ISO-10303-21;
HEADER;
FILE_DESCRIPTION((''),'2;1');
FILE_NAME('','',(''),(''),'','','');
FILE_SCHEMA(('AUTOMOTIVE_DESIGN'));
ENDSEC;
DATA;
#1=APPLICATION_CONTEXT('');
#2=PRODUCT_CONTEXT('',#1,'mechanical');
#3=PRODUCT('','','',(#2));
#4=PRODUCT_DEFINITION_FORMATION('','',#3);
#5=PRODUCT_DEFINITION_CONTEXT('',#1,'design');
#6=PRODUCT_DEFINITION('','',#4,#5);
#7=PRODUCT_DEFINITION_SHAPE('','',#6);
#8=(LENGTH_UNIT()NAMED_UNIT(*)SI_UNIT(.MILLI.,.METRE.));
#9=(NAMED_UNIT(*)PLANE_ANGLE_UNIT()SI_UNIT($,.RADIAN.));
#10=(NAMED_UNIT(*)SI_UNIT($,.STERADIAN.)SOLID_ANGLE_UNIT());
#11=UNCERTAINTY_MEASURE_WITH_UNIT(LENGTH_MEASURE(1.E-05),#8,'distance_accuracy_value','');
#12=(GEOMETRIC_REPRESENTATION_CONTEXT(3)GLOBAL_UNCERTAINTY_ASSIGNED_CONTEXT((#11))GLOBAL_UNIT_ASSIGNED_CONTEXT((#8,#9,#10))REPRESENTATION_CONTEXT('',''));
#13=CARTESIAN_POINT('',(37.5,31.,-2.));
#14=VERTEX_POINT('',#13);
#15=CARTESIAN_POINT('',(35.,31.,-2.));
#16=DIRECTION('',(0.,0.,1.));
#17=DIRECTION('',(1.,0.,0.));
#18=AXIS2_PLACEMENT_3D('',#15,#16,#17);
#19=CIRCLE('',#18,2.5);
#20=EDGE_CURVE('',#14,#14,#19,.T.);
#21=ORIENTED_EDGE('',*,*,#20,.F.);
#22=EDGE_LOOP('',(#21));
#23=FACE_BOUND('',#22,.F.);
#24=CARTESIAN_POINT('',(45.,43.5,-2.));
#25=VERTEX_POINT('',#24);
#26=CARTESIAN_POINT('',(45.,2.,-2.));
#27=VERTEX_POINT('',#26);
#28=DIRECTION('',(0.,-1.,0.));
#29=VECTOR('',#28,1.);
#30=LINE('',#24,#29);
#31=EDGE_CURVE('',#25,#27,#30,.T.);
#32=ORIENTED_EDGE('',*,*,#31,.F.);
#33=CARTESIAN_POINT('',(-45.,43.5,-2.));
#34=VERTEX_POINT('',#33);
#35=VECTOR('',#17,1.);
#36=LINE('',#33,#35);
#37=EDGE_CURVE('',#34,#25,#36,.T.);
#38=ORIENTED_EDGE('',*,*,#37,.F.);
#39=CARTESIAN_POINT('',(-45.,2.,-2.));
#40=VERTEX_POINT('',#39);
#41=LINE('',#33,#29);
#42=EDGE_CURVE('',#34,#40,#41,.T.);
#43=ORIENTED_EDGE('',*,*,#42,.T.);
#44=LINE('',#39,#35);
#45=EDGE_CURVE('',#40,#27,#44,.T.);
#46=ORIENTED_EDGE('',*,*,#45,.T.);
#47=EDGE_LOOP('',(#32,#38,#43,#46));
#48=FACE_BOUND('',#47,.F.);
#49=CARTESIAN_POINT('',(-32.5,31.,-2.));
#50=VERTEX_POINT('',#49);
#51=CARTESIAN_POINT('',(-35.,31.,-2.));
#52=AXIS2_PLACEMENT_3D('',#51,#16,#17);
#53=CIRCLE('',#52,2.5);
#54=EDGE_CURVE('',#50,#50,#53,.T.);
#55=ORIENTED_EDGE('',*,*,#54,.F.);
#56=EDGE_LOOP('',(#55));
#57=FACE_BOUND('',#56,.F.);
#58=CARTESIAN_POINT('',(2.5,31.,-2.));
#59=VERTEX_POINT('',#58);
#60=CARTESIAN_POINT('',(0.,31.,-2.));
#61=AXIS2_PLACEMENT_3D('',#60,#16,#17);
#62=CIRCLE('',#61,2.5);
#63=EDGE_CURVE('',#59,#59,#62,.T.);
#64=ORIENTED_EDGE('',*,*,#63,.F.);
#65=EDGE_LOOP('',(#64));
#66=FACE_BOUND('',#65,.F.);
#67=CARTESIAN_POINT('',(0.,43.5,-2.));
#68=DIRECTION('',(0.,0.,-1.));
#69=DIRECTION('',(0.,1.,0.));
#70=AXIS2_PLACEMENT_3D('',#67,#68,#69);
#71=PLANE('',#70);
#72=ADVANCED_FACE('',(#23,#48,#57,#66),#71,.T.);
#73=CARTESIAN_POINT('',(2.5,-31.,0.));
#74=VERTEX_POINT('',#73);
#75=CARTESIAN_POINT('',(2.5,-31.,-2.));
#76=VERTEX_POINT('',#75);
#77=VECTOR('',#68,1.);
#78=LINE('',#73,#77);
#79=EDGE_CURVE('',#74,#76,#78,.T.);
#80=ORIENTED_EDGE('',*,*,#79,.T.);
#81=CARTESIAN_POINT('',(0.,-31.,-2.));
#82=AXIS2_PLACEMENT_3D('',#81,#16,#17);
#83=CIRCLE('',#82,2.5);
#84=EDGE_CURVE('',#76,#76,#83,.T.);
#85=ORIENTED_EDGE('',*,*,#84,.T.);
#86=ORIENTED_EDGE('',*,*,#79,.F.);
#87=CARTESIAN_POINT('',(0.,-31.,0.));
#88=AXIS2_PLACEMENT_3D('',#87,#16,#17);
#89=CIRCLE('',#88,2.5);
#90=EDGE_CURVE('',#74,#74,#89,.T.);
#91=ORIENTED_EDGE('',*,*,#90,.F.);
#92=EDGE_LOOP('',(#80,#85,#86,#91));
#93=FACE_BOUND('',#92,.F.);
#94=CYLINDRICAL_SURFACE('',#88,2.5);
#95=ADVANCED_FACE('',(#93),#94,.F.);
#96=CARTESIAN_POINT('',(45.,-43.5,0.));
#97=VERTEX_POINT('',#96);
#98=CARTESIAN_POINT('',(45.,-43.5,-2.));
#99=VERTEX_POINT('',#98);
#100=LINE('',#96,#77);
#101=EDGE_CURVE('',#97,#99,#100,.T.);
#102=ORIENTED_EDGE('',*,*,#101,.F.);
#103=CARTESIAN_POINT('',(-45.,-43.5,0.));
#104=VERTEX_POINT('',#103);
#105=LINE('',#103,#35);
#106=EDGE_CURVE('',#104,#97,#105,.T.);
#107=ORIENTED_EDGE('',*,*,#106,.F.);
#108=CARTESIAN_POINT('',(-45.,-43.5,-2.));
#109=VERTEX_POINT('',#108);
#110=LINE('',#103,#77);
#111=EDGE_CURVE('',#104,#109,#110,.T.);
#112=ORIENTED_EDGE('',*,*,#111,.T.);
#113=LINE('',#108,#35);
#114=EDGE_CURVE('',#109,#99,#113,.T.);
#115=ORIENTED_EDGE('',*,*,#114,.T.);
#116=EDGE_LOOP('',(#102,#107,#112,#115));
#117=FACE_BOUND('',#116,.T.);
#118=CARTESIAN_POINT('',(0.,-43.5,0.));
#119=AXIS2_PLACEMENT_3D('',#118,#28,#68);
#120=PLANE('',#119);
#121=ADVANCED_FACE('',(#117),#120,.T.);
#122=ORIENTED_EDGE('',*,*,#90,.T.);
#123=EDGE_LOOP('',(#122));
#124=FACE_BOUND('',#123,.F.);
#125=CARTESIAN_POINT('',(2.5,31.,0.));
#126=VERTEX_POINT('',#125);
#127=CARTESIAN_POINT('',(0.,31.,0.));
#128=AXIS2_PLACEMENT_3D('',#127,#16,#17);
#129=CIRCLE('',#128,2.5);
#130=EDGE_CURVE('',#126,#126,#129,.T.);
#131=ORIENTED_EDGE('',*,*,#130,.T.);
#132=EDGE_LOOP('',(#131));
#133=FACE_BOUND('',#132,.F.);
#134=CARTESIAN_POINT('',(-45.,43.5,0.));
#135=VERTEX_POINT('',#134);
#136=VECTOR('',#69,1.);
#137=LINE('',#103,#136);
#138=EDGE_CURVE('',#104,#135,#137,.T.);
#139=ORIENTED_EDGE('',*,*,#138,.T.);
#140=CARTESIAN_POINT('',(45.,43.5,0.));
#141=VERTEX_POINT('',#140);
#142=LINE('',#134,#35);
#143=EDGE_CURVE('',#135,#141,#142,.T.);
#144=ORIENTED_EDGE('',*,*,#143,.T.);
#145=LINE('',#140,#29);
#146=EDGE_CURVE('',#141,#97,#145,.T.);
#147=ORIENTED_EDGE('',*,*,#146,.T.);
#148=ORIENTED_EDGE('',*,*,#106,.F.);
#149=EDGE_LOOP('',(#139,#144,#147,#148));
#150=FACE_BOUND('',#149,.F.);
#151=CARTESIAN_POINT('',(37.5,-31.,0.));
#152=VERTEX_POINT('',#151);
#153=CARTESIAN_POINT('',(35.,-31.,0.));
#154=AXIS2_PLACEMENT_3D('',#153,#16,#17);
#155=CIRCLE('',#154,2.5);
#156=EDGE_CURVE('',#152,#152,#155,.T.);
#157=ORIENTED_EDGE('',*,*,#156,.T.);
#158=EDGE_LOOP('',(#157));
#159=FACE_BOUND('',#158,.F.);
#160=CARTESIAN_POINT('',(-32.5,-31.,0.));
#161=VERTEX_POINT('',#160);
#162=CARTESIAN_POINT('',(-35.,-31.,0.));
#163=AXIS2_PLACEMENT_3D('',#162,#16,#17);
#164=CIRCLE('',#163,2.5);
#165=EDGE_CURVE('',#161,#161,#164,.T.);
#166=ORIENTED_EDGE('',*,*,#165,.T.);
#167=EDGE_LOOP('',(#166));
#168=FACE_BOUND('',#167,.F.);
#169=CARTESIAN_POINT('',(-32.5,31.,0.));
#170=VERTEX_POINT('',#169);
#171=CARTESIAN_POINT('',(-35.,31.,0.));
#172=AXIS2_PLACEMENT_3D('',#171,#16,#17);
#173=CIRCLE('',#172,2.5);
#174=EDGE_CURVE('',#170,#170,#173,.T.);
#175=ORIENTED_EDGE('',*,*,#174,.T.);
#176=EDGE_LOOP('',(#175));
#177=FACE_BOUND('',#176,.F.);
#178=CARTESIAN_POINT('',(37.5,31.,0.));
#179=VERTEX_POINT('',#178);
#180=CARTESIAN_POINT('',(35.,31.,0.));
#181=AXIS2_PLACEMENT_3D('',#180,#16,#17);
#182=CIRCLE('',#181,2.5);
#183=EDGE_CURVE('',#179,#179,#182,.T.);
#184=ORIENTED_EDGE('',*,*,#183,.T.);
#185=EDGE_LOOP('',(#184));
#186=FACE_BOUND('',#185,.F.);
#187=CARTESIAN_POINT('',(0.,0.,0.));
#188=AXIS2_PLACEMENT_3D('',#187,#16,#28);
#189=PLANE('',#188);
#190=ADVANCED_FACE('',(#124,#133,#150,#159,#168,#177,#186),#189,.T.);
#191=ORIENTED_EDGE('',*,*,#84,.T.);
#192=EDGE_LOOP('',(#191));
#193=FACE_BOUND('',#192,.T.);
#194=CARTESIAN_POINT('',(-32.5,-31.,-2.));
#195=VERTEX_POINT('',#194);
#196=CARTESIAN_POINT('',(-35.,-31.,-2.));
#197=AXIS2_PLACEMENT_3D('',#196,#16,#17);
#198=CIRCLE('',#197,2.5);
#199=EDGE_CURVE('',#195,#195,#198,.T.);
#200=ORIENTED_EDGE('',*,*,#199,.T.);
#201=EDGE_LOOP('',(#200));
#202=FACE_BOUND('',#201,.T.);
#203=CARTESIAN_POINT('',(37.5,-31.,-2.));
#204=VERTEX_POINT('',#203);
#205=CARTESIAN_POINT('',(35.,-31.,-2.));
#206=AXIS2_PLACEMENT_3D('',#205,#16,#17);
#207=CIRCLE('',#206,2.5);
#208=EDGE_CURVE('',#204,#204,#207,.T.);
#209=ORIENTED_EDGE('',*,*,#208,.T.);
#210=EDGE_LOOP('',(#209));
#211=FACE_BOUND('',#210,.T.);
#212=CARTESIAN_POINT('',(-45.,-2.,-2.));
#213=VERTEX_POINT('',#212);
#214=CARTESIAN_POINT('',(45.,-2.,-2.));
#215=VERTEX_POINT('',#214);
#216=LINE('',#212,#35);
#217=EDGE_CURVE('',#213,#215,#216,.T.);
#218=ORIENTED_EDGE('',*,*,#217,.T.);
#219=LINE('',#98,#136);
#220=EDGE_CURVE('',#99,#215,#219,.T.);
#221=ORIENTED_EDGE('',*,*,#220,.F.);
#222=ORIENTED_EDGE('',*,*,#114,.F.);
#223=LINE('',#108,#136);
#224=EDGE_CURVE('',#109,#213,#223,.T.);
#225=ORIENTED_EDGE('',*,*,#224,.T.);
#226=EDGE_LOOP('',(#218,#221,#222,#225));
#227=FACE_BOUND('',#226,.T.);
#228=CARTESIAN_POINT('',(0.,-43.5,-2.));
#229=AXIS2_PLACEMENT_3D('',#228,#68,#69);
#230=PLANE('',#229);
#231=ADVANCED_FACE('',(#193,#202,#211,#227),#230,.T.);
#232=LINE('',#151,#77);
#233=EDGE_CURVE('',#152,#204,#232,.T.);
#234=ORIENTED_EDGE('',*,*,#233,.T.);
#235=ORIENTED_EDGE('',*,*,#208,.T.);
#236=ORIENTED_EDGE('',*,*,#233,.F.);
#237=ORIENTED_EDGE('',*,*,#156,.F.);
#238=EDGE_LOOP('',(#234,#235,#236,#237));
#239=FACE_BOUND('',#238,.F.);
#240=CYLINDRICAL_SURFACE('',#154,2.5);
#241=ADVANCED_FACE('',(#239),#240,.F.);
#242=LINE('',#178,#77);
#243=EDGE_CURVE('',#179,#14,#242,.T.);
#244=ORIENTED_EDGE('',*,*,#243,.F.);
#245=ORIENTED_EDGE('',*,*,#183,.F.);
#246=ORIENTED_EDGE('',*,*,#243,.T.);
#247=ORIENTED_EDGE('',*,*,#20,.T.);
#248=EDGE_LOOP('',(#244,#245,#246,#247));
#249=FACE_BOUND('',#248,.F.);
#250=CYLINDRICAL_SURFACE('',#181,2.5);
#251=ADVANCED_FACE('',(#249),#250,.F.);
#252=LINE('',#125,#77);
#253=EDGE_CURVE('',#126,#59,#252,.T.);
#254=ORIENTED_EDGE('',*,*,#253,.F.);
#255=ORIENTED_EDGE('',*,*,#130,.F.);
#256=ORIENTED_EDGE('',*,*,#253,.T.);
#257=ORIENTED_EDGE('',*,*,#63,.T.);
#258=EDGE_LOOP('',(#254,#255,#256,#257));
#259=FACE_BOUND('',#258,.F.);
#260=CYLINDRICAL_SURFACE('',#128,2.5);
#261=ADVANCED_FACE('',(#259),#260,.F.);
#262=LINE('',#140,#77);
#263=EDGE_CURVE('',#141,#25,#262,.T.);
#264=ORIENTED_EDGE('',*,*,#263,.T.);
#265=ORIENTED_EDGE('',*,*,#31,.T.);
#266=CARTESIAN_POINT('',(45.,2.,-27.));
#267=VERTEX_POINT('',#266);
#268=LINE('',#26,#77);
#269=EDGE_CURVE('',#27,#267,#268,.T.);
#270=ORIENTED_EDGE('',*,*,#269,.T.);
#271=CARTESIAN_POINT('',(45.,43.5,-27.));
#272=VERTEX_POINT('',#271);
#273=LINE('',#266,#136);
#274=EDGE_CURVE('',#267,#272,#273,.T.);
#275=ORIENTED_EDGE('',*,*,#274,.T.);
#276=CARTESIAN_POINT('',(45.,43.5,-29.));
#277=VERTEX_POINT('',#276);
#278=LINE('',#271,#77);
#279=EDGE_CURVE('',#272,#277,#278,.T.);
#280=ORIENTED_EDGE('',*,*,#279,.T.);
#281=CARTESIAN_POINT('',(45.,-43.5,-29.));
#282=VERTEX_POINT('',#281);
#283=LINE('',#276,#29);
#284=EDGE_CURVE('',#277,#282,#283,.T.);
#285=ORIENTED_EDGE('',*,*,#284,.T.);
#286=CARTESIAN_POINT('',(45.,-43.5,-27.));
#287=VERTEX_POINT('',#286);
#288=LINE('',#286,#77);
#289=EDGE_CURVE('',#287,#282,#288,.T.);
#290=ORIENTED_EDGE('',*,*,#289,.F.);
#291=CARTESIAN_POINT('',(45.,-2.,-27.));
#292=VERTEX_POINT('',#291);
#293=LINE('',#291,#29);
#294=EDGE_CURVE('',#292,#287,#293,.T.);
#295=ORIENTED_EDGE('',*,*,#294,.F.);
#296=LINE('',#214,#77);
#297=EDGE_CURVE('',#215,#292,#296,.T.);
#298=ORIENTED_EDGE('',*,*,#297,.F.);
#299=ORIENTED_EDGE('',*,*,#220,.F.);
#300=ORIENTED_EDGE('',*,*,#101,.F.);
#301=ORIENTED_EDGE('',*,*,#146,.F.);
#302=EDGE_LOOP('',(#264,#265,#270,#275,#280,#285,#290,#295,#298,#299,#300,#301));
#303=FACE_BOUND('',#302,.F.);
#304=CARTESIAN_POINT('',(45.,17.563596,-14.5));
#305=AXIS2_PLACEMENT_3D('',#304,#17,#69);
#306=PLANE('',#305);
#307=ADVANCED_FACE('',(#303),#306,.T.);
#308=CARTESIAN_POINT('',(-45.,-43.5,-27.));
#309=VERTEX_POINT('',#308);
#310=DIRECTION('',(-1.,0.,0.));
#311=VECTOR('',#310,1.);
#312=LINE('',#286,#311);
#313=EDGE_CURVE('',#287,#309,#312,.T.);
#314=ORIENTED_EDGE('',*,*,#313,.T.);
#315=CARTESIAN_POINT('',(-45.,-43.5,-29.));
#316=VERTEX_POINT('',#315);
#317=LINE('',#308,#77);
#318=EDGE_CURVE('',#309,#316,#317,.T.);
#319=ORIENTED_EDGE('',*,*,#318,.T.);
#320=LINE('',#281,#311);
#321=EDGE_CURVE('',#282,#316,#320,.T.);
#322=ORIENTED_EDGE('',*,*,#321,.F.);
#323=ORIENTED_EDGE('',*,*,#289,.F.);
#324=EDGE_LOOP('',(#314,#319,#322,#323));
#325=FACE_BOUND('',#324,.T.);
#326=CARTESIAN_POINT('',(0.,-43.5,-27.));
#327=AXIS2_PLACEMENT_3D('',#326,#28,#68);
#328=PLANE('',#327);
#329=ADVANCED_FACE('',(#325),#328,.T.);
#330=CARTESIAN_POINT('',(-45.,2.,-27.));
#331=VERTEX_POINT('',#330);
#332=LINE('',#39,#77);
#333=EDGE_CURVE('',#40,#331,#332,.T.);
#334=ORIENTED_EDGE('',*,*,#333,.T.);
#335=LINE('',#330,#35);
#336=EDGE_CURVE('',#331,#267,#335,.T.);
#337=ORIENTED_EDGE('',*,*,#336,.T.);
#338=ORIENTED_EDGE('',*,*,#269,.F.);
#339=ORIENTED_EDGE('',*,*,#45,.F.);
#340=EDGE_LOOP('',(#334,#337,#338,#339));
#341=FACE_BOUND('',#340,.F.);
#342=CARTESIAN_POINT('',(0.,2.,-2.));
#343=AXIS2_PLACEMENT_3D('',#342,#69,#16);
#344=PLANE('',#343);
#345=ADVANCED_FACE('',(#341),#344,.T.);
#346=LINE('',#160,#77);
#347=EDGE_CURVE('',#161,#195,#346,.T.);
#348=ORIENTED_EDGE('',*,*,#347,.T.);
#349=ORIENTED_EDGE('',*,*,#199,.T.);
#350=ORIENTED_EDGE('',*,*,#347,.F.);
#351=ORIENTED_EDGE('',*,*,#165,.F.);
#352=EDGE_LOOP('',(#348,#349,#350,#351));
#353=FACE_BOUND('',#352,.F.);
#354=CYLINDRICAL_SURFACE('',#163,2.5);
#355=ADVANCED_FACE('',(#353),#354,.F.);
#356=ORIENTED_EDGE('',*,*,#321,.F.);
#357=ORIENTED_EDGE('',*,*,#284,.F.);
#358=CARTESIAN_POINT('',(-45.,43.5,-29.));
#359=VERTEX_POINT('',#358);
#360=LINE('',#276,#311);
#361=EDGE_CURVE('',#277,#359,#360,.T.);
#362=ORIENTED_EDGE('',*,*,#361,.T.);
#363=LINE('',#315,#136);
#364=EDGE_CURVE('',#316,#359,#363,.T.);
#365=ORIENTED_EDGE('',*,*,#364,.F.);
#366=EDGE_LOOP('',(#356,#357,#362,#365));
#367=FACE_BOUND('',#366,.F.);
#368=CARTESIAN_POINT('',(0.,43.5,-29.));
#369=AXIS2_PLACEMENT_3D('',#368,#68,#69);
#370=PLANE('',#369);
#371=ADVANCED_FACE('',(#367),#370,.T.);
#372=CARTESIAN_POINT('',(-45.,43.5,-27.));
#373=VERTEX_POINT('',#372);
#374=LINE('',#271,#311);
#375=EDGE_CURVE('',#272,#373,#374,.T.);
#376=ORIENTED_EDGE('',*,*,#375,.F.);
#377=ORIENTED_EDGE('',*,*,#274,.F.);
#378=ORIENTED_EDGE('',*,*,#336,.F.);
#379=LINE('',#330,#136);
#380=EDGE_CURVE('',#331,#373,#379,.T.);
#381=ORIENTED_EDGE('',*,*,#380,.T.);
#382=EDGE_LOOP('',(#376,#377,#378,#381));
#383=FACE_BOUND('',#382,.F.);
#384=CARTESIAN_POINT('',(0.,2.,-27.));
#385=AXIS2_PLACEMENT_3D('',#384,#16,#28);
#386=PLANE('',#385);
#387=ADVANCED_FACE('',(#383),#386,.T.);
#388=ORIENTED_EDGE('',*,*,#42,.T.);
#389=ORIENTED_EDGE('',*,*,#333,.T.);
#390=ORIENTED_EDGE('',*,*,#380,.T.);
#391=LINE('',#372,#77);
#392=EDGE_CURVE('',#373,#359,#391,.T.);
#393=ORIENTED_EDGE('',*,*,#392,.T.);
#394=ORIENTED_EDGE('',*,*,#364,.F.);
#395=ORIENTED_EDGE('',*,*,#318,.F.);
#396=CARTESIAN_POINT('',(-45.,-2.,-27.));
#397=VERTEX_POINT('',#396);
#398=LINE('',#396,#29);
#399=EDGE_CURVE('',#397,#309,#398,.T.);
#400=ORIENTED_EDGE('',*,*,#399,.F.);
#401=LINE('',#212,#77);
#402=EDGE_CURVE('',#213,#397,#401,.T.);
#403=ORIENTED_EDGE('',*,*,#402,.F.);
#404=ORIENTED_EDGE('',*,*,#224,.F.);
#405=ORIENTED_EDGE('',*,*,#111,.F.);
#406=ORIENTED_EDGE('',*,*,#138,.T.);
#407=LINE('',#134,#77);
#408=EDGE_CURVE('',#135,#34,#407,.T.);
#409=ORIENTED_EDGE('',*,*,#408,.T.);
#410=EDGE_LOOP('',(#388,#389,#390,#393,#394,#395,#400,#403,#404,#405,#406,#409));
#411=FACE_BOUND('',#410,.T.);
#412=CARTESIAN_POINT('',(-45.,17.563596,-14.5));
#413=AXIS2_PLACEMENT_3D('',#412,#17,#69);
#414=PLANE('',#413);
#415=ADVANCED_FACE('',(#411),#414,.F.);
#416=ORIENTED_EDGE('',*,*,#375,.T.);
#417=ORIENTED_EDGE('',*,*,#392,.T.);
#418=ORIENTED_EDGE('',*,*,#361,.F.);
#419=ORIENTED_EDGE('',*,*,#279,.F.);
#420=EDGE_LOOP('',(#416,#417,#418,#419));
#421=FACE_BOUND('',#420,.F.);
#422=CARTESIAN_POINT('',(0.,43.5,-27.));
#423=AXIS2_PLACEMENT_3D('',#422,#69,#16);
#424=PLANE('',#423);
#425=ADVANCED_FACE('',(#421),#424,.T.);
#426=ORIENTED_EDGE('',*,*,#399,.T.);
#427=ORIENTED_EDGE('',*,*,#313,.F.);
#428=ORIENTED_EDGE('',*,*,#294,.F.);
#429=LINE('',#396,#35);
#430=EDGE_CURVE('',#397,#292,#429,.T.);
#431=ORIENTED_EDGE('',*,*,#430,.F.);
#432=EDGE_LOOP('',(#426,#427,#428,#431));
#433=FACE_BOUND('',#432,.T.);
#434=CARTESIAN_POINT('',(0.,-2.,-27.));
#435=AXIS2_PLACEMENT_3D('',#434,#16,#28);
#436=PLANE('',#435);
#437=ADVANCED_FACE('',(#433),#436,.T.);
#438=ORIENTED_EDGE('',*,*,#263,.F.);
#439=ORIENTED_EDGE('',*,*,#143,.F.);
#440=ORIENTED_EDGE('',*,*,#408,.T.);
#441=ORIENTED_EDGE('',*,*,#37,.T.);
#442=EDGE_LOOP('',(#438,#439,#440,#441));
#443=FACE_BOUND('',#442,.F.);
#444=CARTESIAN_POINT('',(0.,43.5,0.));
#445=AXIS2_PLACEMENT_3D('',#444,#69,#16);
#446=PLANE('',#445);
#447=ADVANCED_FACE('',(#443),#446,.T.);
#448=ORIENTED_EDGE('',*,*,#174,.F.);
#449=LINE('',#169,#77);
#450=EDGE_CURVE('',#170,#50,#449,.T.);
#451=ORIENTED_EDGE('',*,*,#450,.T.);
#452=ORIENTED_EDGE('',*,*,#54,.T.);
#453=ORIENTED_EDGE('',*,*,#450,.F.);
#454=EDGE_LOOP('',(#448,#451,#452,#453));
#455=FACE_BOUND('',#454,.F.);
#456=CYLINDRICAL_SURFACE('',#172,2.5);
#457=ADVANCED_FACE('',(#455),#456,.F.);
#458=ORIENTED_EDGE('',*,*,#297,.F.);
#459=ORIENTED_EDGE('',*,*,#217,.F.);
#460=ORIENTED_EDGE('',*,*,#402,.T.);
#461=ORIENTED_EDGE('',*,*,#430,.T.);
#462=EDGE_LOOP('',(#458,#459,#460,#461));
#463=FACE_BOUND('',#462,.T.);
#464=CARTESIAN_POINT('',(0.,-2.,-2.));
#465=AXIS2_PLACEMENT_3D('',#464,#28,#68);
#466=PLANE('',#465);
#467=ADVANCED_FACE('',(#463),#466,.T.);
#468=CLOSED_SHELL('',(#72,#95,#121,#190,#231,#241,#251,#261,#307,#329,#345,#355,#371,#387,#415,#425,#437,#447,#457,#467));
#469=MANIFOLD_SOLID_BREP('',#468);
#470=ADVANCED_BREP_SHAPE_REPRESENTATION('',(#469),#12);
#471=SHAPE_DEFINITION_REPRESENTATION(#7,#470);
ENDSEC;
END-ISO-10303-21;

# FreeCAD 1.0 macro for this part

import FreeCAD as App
import Part
import Sketcher
from FreeCAD import Vector


def add_polygon(sketch, points):
    """Adds a closed chain of lines whose ends are joined by coincident constraints."""
    first, n = sketch.GeometryCount, len(points)
    for a, b in zip(points, points[1:] + points[:1]):
        sketch.addGeometry(Part.LineSegment(App.Vector(*a, 0), App.Vector(*b, 0)), False)
    for i in range(n):
        sketch.addConstraint(Sketcher.Constraint("Coincident", first + i, 2, first + (i + 1) % n, 1))

doc = App.newDocument("Part")
body = doc.addObject("PartDesign::Body", "Body")

sketch1 = body.newObject("Sketcher::SketchObject", "Sketch")
sketch1.AttachmentSupport = (doc.getObject("YZ_Plane"), [""])
sketch1.MapMode = "FlatFace"
add_polygon(sketch1, [(0, -29), (0, 0), (-43.5, 0), (-43.5, -2), (-2, -2), (-2, -27), (-43.5, -27), (-43.5, -29)])
sketch1.addConstraint(Sketcher.Constraint("Vertical", 0))
sketch1.addConstraint(Sketcher.Constraint("Horizontal", 1))
sketch1.addConstraint(Sketcher.Constraint("Vertical", 2))
sketch1.addConstraint(Sketcher.Constraint("Horizontal", 3))
sketch1.addConstraint(Sketcher.Constraint("Vertical", 4))
sketch1.addConstraint(Sketcher.Constraint("Horizontal", 5))
sketch1.addConstraint(Sketcher.Constraint("Vertical", 6))
sketch1.addConstraint(Sketcher.Constraint("Horizontal", 7))
sketch1.addConstraint(Sketcher.Constraint("Coincident", 0, 2, -1, 1))
sketch1.addConstraint(Sketcher.Constraint("Vertical", 2, 2, 5, 2))
sketch1.addConstraint(Sketcher.Constraint("Equal", 2, 6))
sketch1.addConstraint(Sketcher.Constraint("DistanceY", 0, 1, 0, 2, 29.0))
sketch1.addConstraint(Sketcher.Constraint("DistanceY", 2, 2, 2, 1, 2.0))
sketch1.addConstraint(Sketcher.Constraint("DistanceX", 1, 2, 1, 1, 43.5))
sketch1.addConstraint(Sketcher.Constraint("DistanceX", 3, 1, 3, 2, 41.5))
pad1 = body.newObject("PartDesign::Pad", "Pad")
pad1.Profile = sketch1
pad1.Length = 90
pad1.Midplane = True
body2 = doc.addObject("PartDesign::Body", "Body001")
doc.recompute()

body2.BaseFeature = body
doc.recompute()

mirroring = doc.addObject("Part::Mirroring", "Mirroring")
mirroring.Source = body
mirroring.Base = Vector(0, 0, 0)
mirroring.Normal = Vector(0, -1, 0)
body3 = doc.addObject("PartDesign::Body", "Body002")
body3.BaseFeature = mirroring
boolean = body2.newObject("PartDesign::Boolean", "Boolean")
boolean.Type = "Fuse"
boolean.addObjects([body3])
doc.recompute()

sketch2 = body2.newObject("Sketcher::SketchObject", "Sketch001")
sketch2.AttachmentSupport = (doc.getObject("XY_Plane001"), [""])
sketch2.MapMode = "FlatFace"
sketch2.addGeometry(Part.Circle(Vector(35, 31, 0), Vector(0, 0, 1), 2.5), False)
sketch2.addGeometry(Part.Circle(Vector(0, 31, 0), Vector(0, 0, 1), 2.5), False)
sketch2.addGeometry(Part.Circle(Vector(-35, 31, 0), Vector(0, 0, 1), 2.5), False)
sketch2.addGeometry(Part.Circle(Vector(-35, -31, 0), Vector(0, 0, 1), 2.5), False)
sketch2.addGeometry(Part.Circle(Vector(0, -31, 0), Vector(0, 0, 1), 2.5), False)
sketch2.addGeometry(Part.Circle(Vector(35, -31, 0), Vector(0, 0, 1), 2.5), False)
sketch2.addConstraint(Sketcher.Constraint("Equal", 0, 1))
sketch2.addConstraint(Sketcher.Constraint("Equal", 1, 2))
sketch2.addConstraint(Sketcher.Constraint("Equal", 2, 3))
sketch2.addConstraint(Sketcher.Constraint("Equal", 3, 4))
sketch2.addConstraint(Sketcher.Constraint("Equal", 4, 5))
sketch2.addConstraint(Sketcher.Constraint("Symmetric", 0, 3, 3, 3, -1, 1))
sketch2.addConstraint(Sketcher.Constraint("Symmetric", 1, 3, 4, 3, -1, 1))
sketch2.addConstraint(Sketcher.Constraint("Symmetric", 2, 3, 5, 3, -1, 1))
sketch2.addConstraint(Sketcher.Constraint("Symmetric", 0, 3, 2, 3, -2))
sketch2.addConstraint(Sketcher.Constraint("PointOnObject", 1, 3, -2))
sketch2.addConstraint(Sketcher.Constraint("Horizontal", 0, 3, 1, 3))
sketch2.addConstraint(Sketcher.Constraint("Diameter", 0, 5.0))
sketch2.addConstraint(Sketcher.Constraint("DistanceX", -1, 1, 0, 3, 35.0))
sketch2.addConstraint(Sketcher.Constraint("DistanceY", -1, 1, 0, 3, 31.0))
pocket1 = body2.newObject("PartDesign::Pocket", "Pocket")
pocket1.Profile = sketch2
pocket1.Length = 2
mirroring.Visibility = False

doc.recompute()
